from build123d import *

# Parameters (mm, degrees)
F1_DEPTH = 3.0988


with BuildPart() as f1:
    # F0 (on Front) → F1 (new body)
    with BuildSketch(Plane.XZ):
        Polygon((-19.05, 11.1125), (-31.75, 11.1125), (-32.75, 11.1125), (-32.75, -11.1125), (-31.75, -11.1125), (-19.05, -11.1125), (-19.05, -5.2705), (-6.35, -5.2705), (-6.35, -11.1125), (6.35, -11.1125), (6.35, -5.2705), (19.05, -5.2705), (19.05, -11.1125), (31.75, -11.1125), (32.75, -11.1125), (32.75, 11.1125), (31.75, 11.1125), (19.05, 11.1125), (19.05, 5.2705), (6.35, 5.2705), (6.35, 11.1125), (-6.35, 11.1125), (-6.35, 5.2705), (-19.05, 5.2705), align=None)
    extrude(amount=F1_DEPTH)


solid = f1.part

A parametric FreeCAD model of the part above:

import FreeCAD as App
import Part
import Sketcher

V = App.Vector
Q = App.Units.Quantity

doc = App.newDocument("Part")
body = doc.addObject("PartDesign::Body", "Body")

# Sketch on XZ plane
sketch1 = body.newObject("Sketcher::SketchObject", "Sketch")
sketch1.AttachmentSupport = (doc.getObject("XZ_Plane"), [""])
sketch1.MapMode = "FlatFace"
sketch1.addGeometry([
    Part.LineSegment(V(-19, 11, 0), V(-33, 11, 0)),  # 0
    Part.LineSegment(V(-33, 11, 0), V(-33, -11, 0)),  # 1
    Part.LineSegment(V(-33, -11, 0), V(-19, -11, 0)),  # 2
    Part.LineSegment(V(-19, -11, 0), V(-19, -5, 0)),  # 3
    Part.LineSegment(V(-19, -5, 0), V(-6, -5, 0)),  # 4
    Part.LineSegment(V(-6, -5, 0), V(-6, -11, 0)),  # 5
    Part.LineSegment(V(-6, -11, 0), V(6, -11, 0)),  # 6
    Part.LineSegment(V(6, -11, 0), V(6, -5, 0)),  # 7
    Part.LineSegment(V(6, -5, 0), V(19, -5, 0)),  # 8
    Part.LineSegment(V(19, -5, 0), V(19, -11, 0)),  # 9
    Part.LineSegment(V(19, -11, 0), V(33, -11, 0)),  # 10
    Part.LineSegment(V(33, -11, 0), V(33, 11, 0)),  # 11
    Part.LineSegment(V(33, 11, 0), V(19, 11, 0)),  # 12
    Part.LineSegment(V(19, 11, 0), V(19, 5, 0)),  # 13
    Part.LineSegment(V(19, 5, 0), V(6, 5, 0)),  # 14
    Part.LineSegment(V(6, 5, 0), V(6, 11, 0)),  # 15
    Part.LineSegment(V(6, 11, 0), V(-6, 11, 0)),  # 16
    Part.LineSegment(V(-6, 11, 0), V(-6, 5, 0)),  # 17
    Part.LineSegment(V(-6, 5, 0), V(-19, 5, 0)),  # 18
    Part.LineSegment(V(-19, 5, 0), V(-19, 11, 0)),  # 19
], False)
sketch1.addConstraint([
    Sketcher.Constraint("Coincident", 0, 2, 1, 1),
    Sketcher.Constraint("Coincident", 1, 2, 2, 1),
    Sketcher.Constraint("Coincident", 2, 2, 3, 1),
    Sketcher.Constraint("Coincident", 3, 2, 4, 1),
    Sketcher.Constraint("Coincident", 4, 2, 5, 1),
    Sketcher.Constraint("Coincident", 5, 2, 6, 1),
    Sketcher.Constraint("Coincident", 6, 2, 7, 1),
    Sketcher.Constraint("Coincident", 7, 2, 8, 1),
    Sketcher.Constraint("Coincident", 8, 2, 9, 1),
    Sketcher.Constraint("Coincident", 9, 2, 10, 1),
    Sketcher.Constraint("Coincident", 10, 2, 11, 1),
    Sketcher.Constraint("Coincident", 11, 2, 12, 1),
    Sketcher.Constraint("Coincident", 12, 2, 13, 1),
    Sketcher.Constraint("Coincident", 13, 2, 14, 1),
    Sketcher.Constraint("Coincident", 14, 2, 15, 1),
    Sketcher.Constraint("Coincident", 15, 2, 16, 1),
    Sketcher.Constraint("Coincident", 16, 2, 17, 1),
    Sketcher.Constraint("Coincident", 17, 2, 18, 1),
    Sketcher.Constraint("Coincident", 18, 2, 19, 1),
    Sketcher.Constraint("Coincident", 19, 2, 0, 1),
    Sketcher.Constraint("Horizontal", 0),
    Sketcher.Constraint("Vertical", 1),
    Sketcher.Constraint("Horizontal", 2),
    Sketcher.Constraint("Vertical", 3),
    Sketcher.Constraint("Horizontal", 4),
    Sketcher.Constraint("Vertical", 5),
    Sketcher.Constraint("Horizontal", 6),
    Sketcher.Constraint("Vertical", 7),
    Sketcher.Constraint("Horizontal", 8),
    Sketcher.Constraint("Vertical", 9),
    Sketcher.Constraint("Horizontal", 10),
    Sketcher.Constraint("Vertical", 11),
    Sketcher.Constraint("Horizontal", 12),
    Sketcher.Constraint("Vertical", 13),
    Sketcher.Constraint("Horizontal", 14),
    Sketcher.Constraint("Vertical", 15),
    Sketcher.Constraint("Horizontal", 16),
    Sketcher.Constraint("Vertical", 17),
    Sketcher.Constraint("Horizontal", 18),
    Sketcher.Constraint("Vertical", 19),
    Sketcher.Constraint("Symmetric", 0, 2, 10, 2, -1, 1),
    Sketcher.Constraint("Symmetric", 2, 2, 12, 2, -1, 1),
    Sketcher.Constraint("Symmetric", 4, 2, 14, 2, -1, 1),
    Sketcher.Constraint("Symmetric", 6, 2, 16, 2, -1, 1),
    Sketcher.Constraint("Symmetric", 8, 2, 18, 2, -1, 1),
    Sketcher.Constraint("Symmetric", 4, 2, 7, 2, -2),
    Sketcher.Constraint("Symmetric", 2, 2, 9, 2, -2),
    Sketcher.Constraint("Horizontal", 2, 2, 5, 2),
    Sketcher.Constraint("Equal", 4, 6),
    Sketcher.Constraint("DistanceX", 4, 1, 4, 2, Q("0.5 in")),
    Sketcher.Constraint("DistanceY", 3, 1, 3, 2, Q("0.23 in")),
    Sketcher.Constraint("DistanceY", 1, 2, 1, 1, Q("0.875 in")),
    Sketcher.Constraint("DistanceX", 0, 2, 0, 1, 13.7),
])
pad1 = body.newObject("PartDesign::Pad", "Pad")
pad1.Profile = sketch1
pad1.Length = Q("0.122 in")

doc.recompute()
